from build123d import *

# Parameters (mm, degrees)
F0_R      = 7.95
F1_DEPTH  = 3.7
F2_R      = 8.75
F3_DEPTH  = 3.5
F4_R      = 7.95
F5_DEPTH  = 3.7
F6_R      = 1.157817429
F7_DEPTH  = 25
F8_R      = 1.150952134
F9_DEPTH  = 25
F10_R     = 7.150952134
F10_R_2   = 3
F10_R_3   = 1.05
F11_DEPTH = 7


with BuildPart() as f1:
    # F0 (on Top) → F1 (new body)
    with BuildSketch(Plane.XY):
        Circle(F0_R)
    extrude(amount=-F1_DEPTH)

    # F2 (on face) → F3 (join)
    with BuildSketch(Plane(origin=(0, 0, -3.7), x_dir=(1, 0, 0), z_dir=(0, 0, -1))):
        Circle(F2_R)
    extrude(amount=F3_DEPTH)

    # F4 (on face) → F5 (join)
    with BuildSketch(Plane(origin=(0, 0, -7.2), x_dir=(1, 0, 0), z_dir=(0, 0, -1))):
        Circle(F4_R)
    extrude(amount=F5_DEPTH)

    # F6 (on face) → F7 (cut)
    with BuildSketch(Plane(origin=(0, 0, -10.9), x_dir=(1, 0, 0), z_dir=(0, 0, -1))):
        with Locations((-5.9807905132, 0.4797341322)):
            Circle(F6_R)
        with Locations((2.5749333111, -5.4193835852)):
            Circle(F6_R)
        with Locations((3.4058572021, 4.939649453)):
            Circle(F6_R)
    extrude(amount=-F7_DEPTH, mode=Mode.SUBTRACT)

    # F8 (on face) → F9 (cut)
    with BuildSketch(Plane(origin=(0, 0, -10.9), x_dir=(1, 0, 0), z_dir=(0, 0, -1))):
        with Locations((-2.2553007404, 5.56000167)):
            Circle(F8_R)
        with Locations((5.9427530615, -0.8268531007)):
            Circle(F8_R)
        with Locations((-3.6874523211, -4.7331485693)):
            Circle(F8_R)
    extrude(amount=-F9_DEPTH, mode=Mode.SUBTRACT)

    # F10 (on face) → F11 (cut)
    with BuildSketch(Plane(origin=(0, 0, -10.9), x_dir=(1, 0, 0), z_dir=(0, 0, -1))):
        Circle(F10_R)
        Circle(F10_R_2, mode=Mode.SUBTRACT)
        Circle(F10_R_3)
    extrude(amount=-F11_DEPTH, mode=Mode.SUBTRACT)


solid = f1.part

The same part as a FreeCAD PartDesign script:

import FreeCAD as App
import Part
import Sketcher

V = App.Vector
Q = App.Units.Quantity

doc = App.newDocument("Part")
body = doc.addObject("PartDesign::Body", "Body")

# Sketch on XY plane
sketch1 = body.newObject("Sketcher::SketchObject", "Sketch")
sketch1.AttachmentSupport = (doc.getObject("XY_Plane"), [""])
sketch1.MapMode = "FlatFace"
sketch1.addGeometry(Part.Circle(V(0, 0, 0), V(0, 0, 1), 8), False)
sketch1.addConstraint([
    Sketcher.Constraint("Coincident", 0, 3, -1, 1),
    Sketcher.Constraint("Diameter", 0, Q("15.9 mm")),
])
pad1 = body.newObject("PartDesign::Pad", "Pad")
pad1.Profile = sketch1
pad1.Length = 3.7
pad1.Reversed = True

# Sketch on XY plane
sketch2 = body.newObject("Sketcher::SketchObject", "Sketch001")
sketch2.AttachmentSupport = (doc.getObject("XY_Plane"), [""])
sketch2.MapMode = "FlatFace"
sketch2.AttachmentOffset = App.Placement(V(0, 0, -3.7), App.Rotation())
sketch2.addGeometry(Part.Circle(V(0, 0, 0), V(0, 0, 1), 9), False)
sketch2.addConstraint([
    Sketcher.Constraint("Coincident", 0, 3, -1, 1),
    Sketcher.Constraint("Diameter", 0, Q("17.5 mm")),
])
pad2 = body.newObject("PartDesign::Pad", "Pad001")
pad2.Profile = sketch2
pad2.Length = 3.5
pad2.Reversed = True

# Sketch on XY plane
sketch3 = body.newObject("Sketcher::SketchObject", "Sketch002")
sketch3.AttachmentSupport = (doc.getObject("XY_Plane"), [""])
sketch3.MapMode = "FlatFace"
sketch3.AttachmentOffset = App.Placement(V(0, 0, -7.2), App.Rotation())
sketch3.addGeometry(Part.Circle(V(0, 0, 0), V(0, 0, 1), 8), False)
sketch3.addConstraint([
    Sketcher.Constraint("Coincident", 0, 3, -1, 1),
    Sketcher.Constraint("Diameter", 0, Q("15.9 mm")),
])
pad3 = body.newObject("PartDesign::Pad", "Pad002")
pad3.Profile = sketch3
pad3.Length = 3.7
pad3.Reversed = True

# Sketch on XY plane
sketch4 = body.newObject("Sketcher::SketchObject", "Sketch003")
sketch4.AttachmentSupport = (doc.getObject("XY_Plane"), [""])
sketch4.MapMode = "FlatFace"
sketch4.AttachmentOffset = App.Placement(V(0, 0, -10.9), App.Rotation())
sketch4.addGeometry([
    Part.Circle(V(-6, -0.5, 0), V(0, 0, 1), 1.2),
    Part.Circle(V(2.6, 5.4, 0), V(0, 0, 1), 1.2),
    Part.Circle(V(3.4, -4.9, 0), V(0, 0, 1), 1.2),
], False)
sketch4.addConstraint([
    Sketcher.Constraint("Equal", 0, 1),
    Sketcher.Constraint("Equal", 1, 2),
    Sketcher.Constraint("Diameter", 0, Q("2.315635 mm")),
    Sketcher.Constraint("DistanceX", 0, 3, -1, 1, Q("5.980791 mm")),
    Sketcher.Constraint("DistanceY", 2, 3, -1, 1, Q("4.939649 mm")),
    Sketcher.Constraint("DistanceY", 0, 3, -1, 1, Q("0.479734 mm")),
    Sketcher.Constraint("DistanceX", -1, 1, 1, 3, Q("2.574933 mm")),
    Sketcher.Constraint("DistanceY", -1, 1, 1, 3, Q("5.419384 mm")),
    Sketcher.Constraint("DistanceX", -1, 1, 2, 3, Q("3.405857 mm")),
])
pocket1 = body.newObject("PartDesign::Pocket", "Pocket")
pocket1.Profile = sketch4
pocket1.Length = 25
pocket1.Reversed = True

# Sketch on XY plane
sketch5 = body.newObject("Sketcher::SketchObject", "Sketch004")
sketch5.AttachmentSupport = (doc.getObject("XY_Plane"), [""])
sketch5.MapMode = "FlatFace"
sketch5.AttachmentOffset = App.Placement(V(0, 0, -10.9), App.Rotation())
sketch5.addGeometry([
    Part.Circle(V(-2.3, -5.6, 0), V(0, 0, 1), 1.2),
    Part.Circle(V(5.9, 0.8, 0), V(0, 0, 1), 1.2),
    Part.Circle(V(-3.7, 4.7, 0), V(0, 0, 1), 1.2),
], False)
sketch5.addConstraint([
    Sketcher.Constraint("Equal", 0, 1),
    Sketcher.Constraint("Equal", 1, 2),
    Sketcher.Constraint("DistanceY", 0, 3, -1, 1, Q("5.560002 mm")),
    Sketcher.Constraint("Diameter", 0, Q("2.301904 mm")),
    Sketcher.Constraint("DistanceX", 0, 3, -1, 1, Q("2.255301 mm")),
    Sketcher.Constraint("DistanceY", -1, 1, 2, 3, Q("4.733149 mm")),
    Sketcher.Constraint("DistanceX", 2, 3, 0, 3, Q("1.432152 mm")),
    Sketcher.Constraint("DistanceX", -1, 1, 1, 3, Q("5.942753 mm")),
    Sketcher.Constraint("DistanceY", -1, 1, 1, 3, Q("0.826853 mm")),
])
pocket2 = body.newObject("PartDesign::Pocket", "Pocket001")
pocket2.Profile = sketch5
pocket2.Length = 25
pocket2.Reversed = True

# Sketch on XY plane
sketch6 = body.newObject("Sketcher::SketchObject", "Sketch005")
sketch6.AttachmentSupport = (doc.getObject("XY_Plane"), [""])
sketch6.MapMode = "FlatFace"
sketch6.AttachmentOffset = App.Placement(V(0, 0, -10.9), App.Rotation())
sketch6.addGeometry([
    Part.Circle(V(0, 0, 0), V(0, 0, 1), 7.2),
    Part.Circle(V(0, 0, 0), V(0, 0, 1), 3),
    Part.Circle(V(0, 0, 0), V(0, 0, 1), 1.1),
], False)
sketch6.addConstraint([
    Sketcher.Constraint("Coincident", 0, 3, -1, 1),
    Sketcher.Constraint("Coincident", 1, 3, -1, 1),
    Sketcher.Constraint("Coincident", 2, 3, -1, 1),
    Sketcher.Constraint("Diameter", 1, Q("6 mm")),
    Sketcher.Constraint("Diameter", 2, Q("2.1 mm")),
    Sketcher.Constraint("Diameter", 0, Q("14.301904 mm")),
])
pocket3 = body.newObject("PartDesign::Pocket", "Pocket002")
pocket3.Profile = sketch6
pocket3.Length = 7
pocket3.Reversed = True

doc.recompute()
